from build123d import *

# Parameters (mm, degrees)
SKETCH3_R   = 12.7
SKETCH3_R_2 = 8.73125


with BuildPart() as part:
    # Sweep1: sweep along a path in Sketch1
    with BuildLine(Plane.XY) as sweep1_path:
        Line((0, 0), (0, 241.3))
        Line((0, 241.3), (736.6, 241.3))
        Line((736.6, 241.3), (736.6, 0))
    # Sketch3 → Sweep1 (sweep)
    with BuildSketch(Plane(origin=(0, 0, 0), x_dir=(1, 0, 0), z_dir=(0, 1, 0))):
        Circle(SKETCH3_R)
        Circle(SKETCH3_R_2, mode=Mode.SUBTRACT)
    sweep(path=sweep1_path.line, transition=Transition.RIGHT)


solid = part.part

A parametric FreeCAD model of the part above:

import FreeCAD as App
import Part
import Sketcher

V = App.Vector
Q = App.Units.Quantity

doc = App.newDocument("Part")
body = doc.addObject("PartDesign::Body", "Body")

# Sketch on XZ plane
sketch1 = doc.addObject("Sketcher::SketchObject", "Sketch")
body.addObject(sketch1)
sketch1.AttachmentSupport = (doc.XZ_Plane, [""])
sketch1.MapMode = "FlatFace"
sketch1.addGeometry([
    Part.Circle(V(0, 0, 0), V(0, 0, 1), 12.7),
    Part.Circle(V(0, 0, 0), V(0, 0, 1), 8.73125),
], False)
sketch1.addConstraint([
    Sketcher.Constraint("Coincident", 0, 3, -1, 1),
    Sketcher.Constraint("Coincident", 1, 3, -1, 1),
    Sketcher.Constraint("Diameter", 0, Q("1 in")),
    Sketcher.Constraint("Diameter", 1, Q("0.6875 in")),
])

# Sketch on XY plane
sketch2 = doc.addObject("Sketcher::SketchObject", "Sketch001")
body.addObject(sketch2)
sketch2.AttachmentSupport = (doc.XY_Plane, [""])
sketch2.MapMode = "FlatFace"
sketch2.addGeometry([
    Part.LineSegment(V(0, 0, 0), V(0, 241.3, 0)),
    Part.LineSegment(V(0, 241.3, 0), V(736.6, 241.3, 0)),
    Part.LineSegment(V(736.6, 241.3, 0), V(736.6, 0, 0)),
], False)
sketch2.addConstraint([
    Sketcher.Constraint("Coincident", 0, 2, 1, 1),
    Sketcher.Constraint("Coincident", 1, 2, 2, 1),
    Sketcher.Constraint("Vertical", 0),
    Sketcher.Constraint("Horizontal", 1),
    Sketcher.Constraint("Vertical", 2),
    Sketcher.Constraint("Coincident", 0, 1, -1, 1),
    Sketcher.Constraint("PointOnObject", 2, 2, -1),
    Sketcher.Constraint("DistanceX", 1, 1, 1, 2, Q("29 in")),
    Sketcher.Constraint("DistanceY", 0, 1, 0, 2, Q("9.5 in")),
])
doc.recompute()

additivepipe = doc.addObject("PartDesign::AdditivePipe", "AdditivePipe")
body.addObject(additivepipe)
additivepipe.Profile = sketch1
additivepipe.Spine = (sketch2, ["Edge1", "Edge2", "Edge3"])
additivepipe.Transition = "Right corner"

doc.recompute()
